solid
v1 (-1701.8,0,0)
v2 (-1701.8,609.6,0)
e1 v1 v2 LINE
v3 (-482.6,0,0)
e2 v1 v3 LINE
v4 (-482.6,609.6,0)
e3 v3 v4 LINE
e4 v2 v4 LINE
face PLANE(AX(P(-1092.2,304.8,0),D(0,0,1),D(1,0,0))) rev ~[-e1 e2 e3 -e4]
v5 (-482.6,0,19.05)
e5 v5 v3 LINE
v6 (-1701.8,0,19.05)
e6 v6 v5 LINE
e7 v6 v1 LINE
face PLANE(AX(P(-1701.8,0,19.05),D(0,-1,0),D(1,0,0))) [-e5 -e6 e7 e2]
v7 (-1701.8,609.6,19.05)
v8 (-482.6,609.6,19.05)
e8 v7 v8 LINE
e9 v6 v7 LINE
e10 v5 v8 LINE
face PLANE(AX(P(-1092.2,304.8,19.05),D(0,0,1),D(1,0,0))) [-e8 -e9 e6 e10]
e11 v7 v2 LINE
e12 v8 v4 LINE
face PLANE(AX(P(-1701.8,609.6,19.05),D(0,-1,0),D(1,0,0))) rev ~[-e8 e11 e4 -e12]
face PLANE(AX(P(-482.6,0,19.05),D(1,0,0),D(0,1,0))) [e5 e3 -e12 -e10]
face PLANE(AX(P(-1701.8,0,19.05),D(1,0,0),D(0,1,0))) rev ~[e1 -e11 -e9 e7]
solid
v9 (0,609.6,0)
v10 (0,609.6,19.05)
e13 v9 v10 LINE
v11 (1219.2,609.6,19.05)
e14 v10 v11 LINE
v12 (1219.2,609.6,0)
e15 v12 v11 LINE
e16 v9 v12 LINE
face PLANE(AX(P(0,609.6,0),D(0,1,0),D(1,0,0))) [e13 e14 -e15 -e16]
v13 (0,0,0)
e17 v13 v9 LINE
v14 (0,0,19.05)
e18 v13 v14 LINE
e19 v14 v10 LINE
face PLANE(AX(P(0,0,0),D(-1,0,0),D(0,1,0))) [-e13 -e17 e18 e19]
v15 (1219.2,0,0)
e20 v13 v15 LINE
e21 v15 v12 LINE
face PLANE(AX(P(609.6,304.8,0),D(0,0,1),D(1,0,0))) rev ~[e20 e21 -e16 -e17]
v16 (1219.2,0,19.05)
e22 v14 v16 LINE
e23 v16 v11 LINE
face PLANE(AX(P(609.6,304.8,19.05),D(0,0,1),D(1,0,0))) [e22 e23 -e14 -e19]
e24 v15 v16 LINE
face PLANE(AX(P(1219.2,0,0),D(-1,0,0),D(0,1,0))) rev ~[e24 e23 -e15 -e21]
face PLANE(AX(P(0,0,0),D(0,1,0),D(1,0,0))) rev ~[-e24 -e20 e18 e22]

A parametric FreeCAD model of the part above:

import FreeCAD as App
import Part
import Sketcher

V = App.Vector
Q = App.Units.Quantity


def add_polygon(sketch, points):
    """Adds a closed chain of lines whose ends are joined by coincident constraints."""
    first, n = sketch.GeometryCount, len(points)
    for a, b in zip(points, points[1:] + points[:1]):
        sketch.addGeometry(Part.LineSegment(App.Vector(*a, 0), App.Vector(*b, 0)), False)
    for i in range(n):
        sketch.addConstraint(Sketcher.Constraint("Coincident", first + i, 2, first + (i + 1) % n, 1))

doc = App.newDocument("Part")
body = doc.addObject("PartDesign::Body", "Body")

sketch1 = body.newObject("Sketcher::SketchObject", "Sketch")
sketch1.AttachmentSupport = (doc.getObject("XY_Plane"), [""])
sketch1.MapMode = "FlatFace"
add_polygon(sketch1, [(0, 609.6), (0, 0), (1219.2, 0), (1219.2, 609.6)])
sketch1.addConstraint([
    Sketcher.Constraint("Vertical", 0),
    Sketcher.Constraint("Horizontal", 1),
    Sketcher.Constraint("Vertical", 2),
    Sketcher.Constraint("Horizontal", 3),
    Sketcher.Constraint("Coincident", 0, 2, -1, 1),
    Sketcher.Constraint("DistanceX", 1, 1, 1, 2, Q("48 in")),
    Sketcher.Constraint("DistanceY", 0, 2, 0, 1, Q("24 in")),
])
pad1 = body.newObject("PartDesign::Pad", "Pad")
pad1.Profile = sketch1
pad1.Length = Q("0.75 in")
body2 = doc.addObject("PartDesign::Body", "Body001")

sketch2 = body2.newObject("Sketcher::SketchObject", "Sketch001")
sketch2.AttachmentSupport = (doc.getObject("XY_Plane001"), [""])
sketch2.MapMode = "FlatFace"
sketch2.AttachmentOffset = App.Placement(V(0, 0, 0.75 * 25.4), App.Rotation())
add_polygon(sketch2, [(-1701.8, 609.6), (-1701.8, 0), (-482.6, 0), (-482.6, 609.6)])
sketch2.addConstraint([
    Sketcher.Constraint("Vertical", 0),
    Sketcher.Constraint("Horizontal", 1),
    Sketcher.Constraint("Vertical", 2),
    Sketcher.Constraint("Horizontal", 3),
    Sketcher.Constraint("PointOnObject", 0, 2, -1),
    Sketcher.Constraint("DistanceX", 1, 1, 1, 2, Q("48 in")),
    Sketcher.Constraint("DistanceY", 0, 2, 0, 1, Q("24 in")),
    Sketcher.Constraint("DistanceX", 0, 2, -1, 1, Q("67 in")),
])
pad2 = body2.newObject("PartDesign::Pad", "Pad001")
pad2.Profile = sketch2
pad2.Length = Q("0.75 in")
pad2.Reversed = True

doc.recompute()
